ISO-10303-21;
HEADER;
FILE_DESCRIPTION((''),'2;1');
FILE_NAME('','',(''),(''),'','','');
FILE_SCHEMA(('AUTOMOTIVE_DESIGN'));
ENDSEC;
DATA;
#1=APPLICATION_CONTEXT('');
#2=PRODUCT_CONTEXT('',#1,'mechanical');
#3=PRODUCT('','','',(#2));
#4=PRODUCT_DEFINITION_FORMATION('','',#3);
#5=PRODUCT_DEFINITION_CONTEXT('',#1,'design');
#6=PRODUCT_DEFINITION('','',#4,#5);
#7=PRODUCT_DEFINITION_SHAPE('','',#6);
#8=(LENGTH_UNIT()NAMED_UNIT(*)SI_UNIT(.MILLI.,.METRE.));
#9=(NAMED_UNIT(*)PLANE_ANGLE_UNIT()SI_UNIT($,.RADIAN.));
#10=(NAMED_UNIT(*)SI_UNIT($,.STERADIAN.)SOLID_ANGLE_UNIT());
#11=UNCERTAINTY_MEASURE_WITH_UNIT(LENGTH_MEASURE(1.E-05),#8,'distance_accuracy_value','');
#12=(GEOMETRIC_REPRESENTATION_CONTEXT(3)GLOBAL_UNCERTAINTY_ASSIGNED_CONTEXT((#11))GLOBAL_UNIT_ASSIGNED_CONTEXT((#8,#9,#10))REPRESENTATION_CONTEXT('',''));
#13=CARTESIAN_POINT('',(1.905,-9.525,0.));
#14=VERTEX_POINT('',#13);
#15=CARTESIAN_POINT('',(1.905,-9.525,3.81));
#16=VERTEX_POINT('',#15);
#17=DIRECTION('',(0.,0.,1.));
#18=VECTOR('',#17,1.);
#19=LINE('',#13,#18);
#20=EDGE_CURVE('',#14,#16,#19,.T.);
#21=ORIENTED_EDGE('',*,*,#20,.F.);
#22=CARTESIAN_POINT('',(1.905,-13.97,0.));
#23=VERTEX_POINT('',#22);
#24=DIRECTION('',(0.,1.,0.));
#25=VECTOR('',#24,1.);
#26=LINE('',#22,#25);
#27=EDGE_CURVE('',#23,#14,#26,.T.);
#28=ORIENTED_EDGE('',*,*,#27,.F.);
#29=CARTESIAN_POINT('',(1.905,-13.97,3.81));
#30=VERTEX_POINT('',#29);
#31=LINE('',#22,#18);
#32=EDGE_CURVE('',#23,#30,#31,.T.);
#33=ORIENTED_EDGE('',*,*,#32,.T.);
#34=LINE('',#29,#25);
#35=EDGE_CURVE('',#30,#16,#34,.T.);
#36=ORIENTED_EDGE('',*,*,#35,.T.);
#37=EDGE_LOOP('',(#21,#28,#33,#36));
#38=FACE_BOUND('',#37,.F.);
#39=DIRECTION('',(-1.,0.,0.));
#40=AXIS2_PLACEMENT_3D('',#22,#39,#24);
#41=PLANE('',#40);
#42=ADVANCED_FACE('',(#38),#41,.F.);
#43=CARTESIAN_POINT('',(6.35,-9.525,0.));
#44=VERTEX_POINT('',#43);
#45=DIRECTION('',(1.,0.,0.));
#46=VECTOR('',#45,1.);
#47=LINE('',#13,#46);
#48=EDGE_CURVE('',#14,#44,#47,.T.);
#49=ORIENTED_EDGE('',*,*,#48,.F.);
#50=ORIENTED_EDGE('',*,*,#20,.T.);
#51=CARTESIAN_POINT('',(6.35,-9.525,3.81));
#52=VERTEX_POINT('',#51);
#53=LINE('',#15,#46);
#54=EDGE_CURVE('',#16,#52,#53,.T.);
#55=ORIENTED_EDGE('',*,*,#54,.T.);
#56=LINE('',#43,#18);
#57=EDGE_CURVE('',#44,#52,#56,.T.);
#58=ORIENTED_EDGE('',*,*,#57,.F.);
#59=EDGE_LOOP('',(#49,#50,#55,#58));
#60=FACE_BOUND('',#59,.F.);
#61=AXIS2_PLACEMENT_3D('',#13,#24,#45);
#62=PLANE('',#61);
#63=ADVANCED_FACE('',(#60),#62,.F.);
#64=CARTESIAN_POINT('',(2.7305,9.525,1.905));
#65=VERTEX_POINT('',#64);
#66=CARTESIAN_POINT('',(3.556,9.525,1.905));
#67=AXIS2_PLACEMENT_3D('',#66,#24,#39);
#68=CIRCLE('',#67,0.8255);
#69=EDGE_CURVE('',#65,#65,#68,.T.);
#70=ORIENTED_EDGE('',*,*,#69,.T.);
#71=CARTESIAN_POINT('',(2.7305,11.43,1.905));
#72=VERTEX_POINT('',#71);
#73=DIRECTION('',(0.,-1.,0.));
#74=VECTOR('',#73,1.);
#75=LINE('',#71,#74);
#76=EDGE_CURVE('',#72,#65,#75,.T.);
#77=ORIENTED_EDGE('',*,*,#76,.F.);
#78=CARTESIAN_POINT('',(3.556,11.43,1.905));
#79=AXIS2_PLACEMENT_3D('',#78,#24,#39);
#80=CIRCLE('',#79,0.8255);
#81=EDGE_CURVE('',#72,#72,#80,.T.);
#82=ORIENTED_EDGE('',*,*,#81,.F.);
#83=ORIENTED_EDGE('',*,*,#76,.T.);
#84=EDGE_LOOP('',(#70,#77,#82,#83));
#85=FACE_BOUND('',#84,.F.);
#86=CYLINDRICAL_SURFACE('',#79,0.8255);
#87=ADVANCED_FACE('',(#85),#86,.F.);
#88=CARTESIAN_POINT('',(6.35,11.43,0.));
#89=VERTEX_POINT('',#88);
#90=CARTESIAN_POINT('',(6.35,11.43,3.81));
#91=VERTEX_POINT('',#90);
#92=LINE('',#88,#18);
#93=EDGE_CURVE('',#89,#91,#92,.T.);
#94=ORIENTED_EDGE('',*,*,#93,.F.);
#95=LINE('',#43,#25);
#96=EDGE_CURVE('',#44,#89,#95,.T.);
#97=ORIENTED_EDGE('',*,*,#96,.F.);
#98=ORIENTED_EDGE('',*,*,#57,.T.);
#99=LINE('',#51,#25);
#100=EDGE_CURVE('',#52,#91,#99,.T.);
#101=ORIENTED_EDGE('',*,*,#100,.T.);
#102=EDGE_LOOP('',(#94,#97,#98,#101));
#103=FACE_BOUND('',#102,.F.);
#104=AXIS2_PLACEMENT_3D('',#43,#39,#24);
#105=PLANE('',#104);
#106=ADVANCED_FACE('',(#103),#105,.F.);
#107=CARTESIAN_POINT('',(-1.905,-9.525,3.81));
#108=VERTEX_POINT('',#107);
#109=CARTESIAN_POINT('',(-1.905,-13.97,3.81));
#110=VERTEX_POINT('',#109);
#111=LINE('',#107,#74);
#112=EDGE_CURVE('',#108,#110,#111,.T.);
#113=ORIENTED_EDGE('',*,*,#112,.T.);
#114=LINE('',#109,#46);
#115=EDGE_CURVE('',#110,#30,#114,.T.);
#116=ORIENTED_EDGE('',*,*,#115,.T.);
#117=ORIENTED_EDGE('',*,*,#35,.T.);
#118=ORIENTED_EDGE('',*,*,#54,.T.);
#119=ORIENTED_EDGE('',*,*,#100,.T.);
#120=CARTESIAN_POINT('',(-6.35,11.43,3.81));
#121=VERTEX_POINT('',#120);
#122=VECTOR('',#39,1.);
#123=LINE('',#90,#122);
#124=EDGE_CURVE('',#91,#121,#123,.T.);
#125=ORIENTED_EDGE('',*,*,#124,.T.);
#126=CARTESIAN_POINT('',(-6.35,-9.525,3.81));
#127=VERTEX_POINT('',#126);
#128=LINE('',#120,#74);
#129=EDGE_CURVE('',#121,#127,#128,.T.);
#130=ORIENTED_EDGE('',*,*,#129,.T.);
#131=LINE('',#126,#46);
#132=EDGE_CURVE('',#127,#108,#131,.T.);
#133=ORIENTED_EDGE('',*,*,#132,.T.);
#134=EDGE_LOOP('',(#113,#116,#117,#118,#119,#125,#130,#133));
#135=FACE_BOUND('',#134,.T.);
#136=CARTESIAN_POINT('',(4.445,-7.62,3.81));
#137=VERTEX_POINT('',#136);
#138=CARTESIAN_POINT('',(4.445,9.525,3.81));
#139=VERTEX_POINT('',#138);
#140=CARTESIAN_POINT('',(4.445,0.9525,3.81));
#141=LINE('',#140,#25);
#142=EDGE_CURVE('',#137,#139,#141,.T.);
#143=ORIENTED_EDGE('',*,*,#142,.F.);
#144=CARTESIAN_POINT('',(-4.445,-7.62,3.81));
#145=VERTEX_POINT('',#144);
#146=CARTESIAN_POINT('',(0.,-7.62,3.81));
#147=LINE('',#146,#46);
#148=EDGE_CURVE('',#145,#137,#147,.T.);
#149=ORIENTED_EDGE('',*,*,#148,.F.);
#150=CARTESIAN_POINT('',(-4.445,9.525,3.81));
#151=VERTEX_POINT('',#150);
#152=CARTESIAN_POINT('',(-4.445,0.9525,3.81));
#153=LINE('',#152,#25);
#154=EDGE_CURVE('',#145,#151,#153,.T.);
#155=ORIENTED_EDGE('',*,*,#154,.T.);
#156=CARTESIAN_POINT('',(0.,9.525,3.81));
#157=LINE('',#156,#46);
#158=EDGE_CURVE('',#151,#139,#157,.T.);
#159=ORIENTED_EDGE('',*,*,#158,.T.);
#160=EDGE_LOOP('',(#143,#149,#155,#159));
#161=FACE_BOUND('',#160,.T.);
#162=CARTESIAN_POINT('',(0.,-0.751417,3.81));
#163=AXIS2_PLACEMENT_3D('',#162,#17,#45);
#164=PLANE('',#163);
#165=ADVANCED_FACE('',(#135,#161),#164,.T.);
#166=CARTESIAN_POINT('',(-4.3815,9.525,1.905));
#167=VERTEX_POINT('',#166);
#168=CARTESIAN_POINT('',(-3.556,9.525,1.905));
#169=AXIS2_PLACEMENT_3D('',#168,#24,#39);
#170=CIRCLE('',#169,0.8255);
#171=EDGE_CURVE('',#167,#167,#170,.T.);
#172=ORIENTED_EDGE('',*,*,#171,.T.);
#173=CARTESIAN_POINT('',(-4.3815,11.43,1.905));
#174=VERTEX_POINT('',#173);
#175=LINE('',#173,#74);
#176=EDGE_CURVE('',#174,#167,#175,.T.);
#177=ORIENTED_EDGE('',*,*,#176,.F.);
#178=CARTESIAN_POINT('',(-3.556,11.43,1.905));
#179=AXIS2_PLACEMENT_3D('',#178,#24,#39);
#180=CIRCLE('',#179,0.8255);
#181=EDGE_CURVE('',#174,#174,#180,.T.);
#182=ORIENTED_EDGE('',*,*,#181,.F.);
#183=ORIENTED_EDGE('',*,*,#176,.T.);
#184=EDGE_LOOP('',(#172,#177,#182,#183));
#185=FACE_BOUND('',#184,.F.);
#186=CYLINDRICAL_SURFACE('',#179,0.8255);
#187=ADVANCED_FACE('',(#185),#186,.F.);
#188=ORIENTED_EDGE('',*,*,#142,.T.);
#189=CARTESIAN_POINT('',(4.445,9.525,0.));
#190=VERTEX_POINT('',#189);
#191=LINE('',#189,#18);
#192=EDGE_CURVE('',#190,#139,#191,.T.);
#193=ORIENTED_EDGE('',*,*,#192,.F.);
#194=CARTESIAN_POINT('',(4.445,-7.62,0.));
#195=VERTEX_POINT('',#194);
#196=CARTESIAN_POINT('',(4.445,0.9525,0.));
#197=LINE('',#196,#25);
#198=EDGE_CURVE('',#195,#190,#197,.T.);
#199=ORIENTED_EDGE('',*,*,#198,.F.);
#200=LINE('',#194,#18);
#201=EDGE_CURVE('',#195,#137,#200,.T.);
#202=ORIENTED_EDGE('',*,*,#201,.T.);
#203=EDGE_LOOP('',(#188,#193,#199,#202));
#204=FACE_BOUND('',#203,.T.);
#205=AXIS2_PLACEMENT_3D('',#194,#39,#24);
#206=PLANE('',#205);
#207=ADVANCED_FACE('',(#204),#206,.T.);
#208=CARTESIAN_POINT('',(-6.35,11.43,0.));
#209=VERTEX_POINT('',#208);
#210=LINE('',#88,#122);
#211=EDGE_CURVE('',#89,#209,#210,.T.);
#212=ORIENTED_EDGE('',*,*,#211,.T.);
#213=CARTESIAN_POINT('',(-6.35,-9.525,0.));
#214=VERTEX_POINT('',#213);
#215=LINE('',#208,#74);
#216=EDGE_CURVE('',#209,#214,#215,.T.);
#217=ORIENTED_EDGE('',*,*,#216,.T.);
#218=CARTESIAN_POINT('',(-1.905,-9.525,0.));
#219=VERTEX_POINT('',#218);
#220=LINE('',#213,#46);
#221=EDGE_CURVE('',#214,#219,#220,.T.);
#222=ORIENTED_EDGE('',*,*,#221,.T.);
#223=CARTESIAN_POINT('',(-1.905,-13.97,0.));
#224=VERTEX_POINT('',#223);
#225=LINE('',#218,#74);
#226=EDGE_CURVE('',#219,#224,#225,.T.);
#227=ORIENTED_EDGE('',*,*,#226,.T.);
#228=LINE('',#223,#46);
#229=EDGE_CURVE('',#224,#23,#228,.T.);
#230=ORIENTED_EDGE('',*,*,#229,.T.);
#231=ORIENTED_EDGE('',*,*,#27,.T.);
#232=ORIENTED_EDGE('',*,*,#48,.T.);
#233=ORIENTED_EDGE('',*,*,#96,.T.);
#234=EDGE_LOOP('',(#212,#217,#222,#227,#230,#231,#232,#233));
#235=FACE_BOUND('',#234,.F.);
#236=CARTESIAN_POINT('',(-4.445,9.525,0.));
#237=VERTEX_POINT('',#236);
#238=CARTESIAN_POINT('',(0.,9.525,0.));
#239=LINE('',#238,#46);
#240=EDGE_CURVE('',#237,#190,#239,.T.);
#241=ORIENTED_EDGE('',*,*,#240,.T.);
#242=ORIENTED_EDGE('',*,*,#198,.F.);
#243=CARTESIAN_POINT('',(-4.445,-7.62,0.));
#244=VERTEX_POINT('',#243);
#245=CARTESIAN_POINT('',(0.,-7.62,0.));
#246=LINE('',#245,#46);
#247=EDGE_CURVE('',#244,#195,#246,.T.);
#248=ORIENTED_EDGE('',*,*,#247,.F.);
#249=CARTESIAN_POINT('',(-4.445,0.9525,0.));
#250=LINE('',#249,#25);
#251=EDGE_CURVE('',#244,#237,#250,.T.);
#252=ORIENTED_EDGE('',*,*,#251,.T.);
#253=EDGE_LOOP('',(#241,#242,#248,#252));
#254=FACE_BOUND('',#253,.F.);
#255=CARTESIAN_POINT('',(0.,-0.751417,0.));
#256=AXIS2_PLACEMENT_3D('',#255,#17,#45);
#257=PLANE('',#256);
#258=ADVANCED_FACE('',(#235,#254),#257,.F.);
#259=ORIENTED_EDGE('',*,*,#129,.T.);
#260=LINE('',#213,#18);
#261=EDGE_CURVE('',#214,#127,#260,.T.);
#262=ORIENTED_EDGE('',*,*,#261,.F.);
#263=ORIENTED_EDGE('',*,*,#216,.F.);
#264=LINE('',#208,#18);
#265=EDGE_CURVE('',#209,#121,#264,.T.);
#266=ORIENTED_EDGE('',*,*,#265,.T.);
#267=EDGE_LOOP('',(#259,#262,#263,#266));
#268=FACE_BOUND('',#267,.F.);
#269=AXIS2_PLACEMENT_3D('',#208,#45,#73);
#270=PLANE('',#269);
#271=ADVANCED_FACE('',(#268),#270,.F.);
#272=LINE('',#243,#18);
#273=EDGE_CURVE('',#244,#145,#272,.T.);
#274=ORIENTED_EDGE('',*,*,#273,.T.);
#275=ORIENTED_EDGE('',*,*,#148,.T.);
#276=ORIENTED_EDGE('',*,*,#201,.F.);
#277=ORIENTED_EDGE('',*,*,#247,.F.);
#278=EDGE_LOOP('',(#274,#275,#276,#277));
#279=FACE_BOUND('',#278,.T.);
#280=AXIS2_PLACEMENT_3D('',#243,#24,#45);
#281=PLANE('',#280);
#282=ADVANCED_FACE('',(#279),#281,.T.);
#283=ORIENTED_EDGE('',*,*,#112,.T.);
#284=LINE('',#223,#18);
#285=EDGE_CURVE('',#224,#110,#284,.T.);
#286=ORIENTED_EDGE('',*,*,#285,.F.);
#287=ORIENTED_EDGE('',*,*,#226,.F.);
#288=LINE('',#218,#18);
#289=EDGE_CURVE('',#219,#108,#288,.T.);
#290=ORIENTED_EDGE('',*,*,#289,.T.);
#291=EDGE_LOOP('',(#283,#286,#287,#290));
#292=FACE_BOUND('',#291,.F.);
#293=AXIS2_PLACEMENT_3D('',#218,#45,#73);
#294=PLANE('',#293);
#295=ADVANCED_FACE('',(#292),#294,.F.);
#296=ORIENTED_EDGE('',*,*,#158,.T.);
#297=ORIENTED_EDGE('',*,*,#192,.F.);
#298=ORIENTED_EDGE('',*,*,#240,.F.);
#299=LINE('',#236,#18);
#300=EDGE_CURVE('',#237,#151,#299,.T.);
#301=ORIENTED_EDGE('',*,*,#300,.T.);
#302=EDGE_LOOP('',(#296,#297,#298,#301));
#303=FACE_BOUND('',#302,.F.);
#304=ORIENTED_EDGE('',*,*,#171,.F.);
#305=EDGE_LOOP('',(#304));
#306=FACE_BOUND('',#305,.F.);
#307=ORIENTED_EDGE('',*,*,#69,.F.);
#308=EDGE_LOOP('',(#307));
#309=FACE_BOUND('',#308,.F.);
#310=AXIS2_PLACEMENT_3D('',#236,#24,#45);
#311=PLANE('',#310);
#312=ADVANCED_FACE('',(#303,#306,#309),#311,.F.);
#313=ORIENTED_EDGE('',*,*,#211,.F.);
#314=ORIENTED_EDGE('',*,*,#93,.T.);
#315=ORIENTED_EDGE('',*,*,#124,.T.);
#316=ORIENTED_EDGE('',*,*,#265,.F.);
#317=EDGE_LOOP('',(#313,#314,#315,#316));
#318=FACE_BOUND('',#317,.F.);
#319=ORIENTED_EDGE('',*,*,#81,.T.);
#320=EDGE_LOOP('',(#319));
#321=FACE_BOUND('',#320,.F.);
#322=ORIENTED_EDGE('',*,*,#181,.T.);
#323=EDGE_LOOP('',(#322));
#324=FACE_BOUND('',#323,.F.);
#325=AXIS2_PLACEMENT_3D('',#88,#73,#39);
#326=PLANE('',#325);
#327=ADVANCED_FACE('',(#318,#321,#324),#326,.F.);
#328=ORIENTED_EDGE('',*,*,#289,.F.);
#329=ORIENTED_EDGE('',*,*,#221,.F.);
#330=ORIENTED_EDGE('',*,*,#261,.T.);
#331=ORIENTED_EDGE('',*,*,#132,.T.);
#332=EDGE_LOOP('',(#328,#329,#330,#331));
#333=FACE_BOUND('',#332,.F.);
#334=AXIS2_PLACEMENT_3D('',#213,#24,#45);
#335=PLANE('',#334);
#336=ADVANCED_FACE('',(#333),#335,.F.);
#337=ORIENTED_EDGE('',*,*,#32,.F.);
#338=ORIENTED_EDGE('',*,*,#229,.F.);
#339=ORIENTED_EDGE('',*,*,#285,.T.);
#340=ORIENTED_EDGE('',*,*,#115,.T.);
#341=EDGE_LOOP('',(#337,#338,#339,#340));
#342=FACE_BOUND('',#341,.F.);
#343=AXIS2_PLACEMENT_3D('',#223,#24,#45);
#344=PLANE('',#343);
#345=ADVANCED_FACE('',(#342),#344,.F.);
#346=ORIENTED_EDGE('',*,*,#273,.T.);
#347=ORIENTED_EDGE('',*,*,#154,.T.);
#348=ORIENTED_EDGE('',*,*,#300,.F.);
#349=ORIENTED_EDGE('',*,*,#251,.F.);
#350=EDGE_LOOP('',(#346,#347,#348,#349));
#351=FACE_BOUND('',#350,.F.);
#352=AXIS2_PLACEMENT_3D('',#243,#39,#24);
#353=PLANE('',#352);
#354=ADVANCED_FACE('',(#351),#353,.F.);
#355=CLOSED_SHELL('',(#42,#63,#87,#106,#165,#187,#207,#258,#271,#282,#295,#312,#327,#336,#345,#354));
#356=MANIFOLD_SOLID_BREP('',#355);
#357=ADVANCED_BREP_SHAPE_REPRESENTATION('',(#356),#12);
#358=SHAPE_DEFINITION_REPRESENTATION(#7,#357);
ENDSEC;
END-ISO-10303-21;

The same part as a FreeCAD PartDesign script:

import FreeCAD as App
import Part
import Sketcher

V = App.Vector
Q = App.Units.Quantity


def add_polygon(sketch, points):
    """Adds a closed chain of lines whose ends are joined by coincident constraints."""
    first, n = sketch.GeometryCount, len(points)
    for a, b in zip(points, points[1:] + points[:1]):
        sketch.addGeometry(Part.LineSegment(App.Vector(*a, 0), App.Vector(*b, 0)), False)
    for i in range(n):
        sketch.addConstraint(Sketcher.Constraint("Coincident", first + i, 2, first + (i + 1) % n, 1))

doc = App.newDocument("Part")
body = doc.addObject("PartDesign::Body", "Body")

sketch1 = doc.addObject("Sketcher::SketchObject", "Sketch")
body.addObject(sketch1)
sketch1.AttachmentSupport = (doc.XY_Plane, [""])
sketch1.MapMode = "FlatFace"
add_polygon(sketch1, [(-1.9, -14), (1.9, -14), (1.9, -9.5), (6.3, -9.5), (6.3, 11.4), (-6.3, 11.4), (-6.3, -9.5), (-1.9, -9.5)])
add_polygon(sketch1, [(4.4, -7.6), (-4.4, -7.6), (-4.4, 9.5), (4.4, 9.5)])
sketch1.addConstraint(Sketcher.Constraint("Horizontal", 0))
sketch1.addConstraint(Sketcher.Constraint("Vertical", 1))
sketch1.addConstraint(Sketcher.Constraint("Horizontal", 2))
sketch1.addConstraint(Sketcher.Constraint("Vertical", 3))
sketch1.addConstraint(Sketcher.Constraint("Horizontal", 4))
sketch1.addConstraint(Sketcher.Constraint("Vertical", 5))
sketch1.addConstraint(Sketcher.Constraint("Horizontal", 6))
sketch1.addConstraint(Sketcher.Constraint("Vertical", 7))
sketch1.addConstraint(Sketcher.Constraint("Horizontal", 8))
sketch1.addConstraint(Sketcher.Constraint("Vertical", 9))
sketch1.addConstraint(Sketcher.Constraint("Horizontal", 10))
sketch1.addConstraint(Sketcher.Constraint("Vertical", 11))
sketch1.addConstraint(Sketcher.Constraint("Symmetric", 2, 2, 5, 2, -2))
sketch1.addConstraint(Sketcher.Constraint("Equal", 2, 6))
sketch1.addConstraint(Sketcher.Constraint("Equal", 6, 1))
sketch1.addConstraint(Sketcher.Constraint("DistanceX", 4, 2, 4, 1, Q("0.5 in")))
sketch1.addConstraint(Sketcher.Constraint("DistanceY", 0, 2, 3, 2, Q("1 in")))
sketch1.addConstraint(Sketcher.Constraint("DistanceX", 0, 1, 0, 2, Q("0.15 in")))
sketch1.addConstraint(Sketcher.Constraint("DistanceX", 8, 2, 8, 1, Q("0.35 in")))
sketch1.addConstraint(Sketcher.Constraint("DistanceY", 8, 2, -1, 1, Q("0.3 in")))
sketch1.addConstraint(Sketcher.Constraint("DistanceX", 8, 2, 6, 2, Q("0.1 in")))
sketch1.addConstraint(Sketcher.Constraint("DistanceY", 9, 1, 9, 2, Q("0.675 in")))
sketch1.addConstraint(Sketcher.Constraint("DistanceY", 0, 2, -1, 1, Q("0.55 in")))
pad1 = doc.addObject("PartDesign::Pad", "Pad")
body.addObject(pad1)
pad1.Profile = sketch1
pad1.Length = Q("0.15 in")

sketch2 = doc.addObject("Sketcher::SketchObject", "Sketch001")
body.addObject(sketch2)
sketch2.AttachmentSupport = (doc.XZ_Plane, [""])
sketch2.MapMode = "FlatFace"
sketch2.AttachmentOffset = App.Placement(V(0, 0, -0.45 * 25.4), App.Rotation())
sketch2.addGeometry(Part.Circle(V(3.6, 1.9, 0), V(0, 0, 1), 0.8), False)
sketch2.addGeometry(Part.Circle(V(-3.6, 1.9, 0), V(0, 0, 1), 0.8), False)
sketch2.addConstraint(Sketcher.Constraint("Equal", 0, 1))
sketch2.addConstraint(Sketcher.Constraint("Symmetric", 0, 3, 1, 3, -2))
sketch2.addConstraint(Sketcher.Constraint("Diameter", 0, Q("0.065 in")))
sketch2.addConstraint(Sketcher.Constraint("DistanceX", -1, 1, 0, 3, Q("0.14 in")))
sketch2.addConstraint(Sketcher.Constraint("DistanceY", -1, 1, 0, 3, Q("0.075 in")))
pocket1 = doc.addObject("PartDesign::Pocket", "Pocket")
body.addObject(pocket1)
pocket1.Profile = sketch2
pocket1.Length = Q("0.08 in")
pocket1.Reversed = True

doc.recompute()
